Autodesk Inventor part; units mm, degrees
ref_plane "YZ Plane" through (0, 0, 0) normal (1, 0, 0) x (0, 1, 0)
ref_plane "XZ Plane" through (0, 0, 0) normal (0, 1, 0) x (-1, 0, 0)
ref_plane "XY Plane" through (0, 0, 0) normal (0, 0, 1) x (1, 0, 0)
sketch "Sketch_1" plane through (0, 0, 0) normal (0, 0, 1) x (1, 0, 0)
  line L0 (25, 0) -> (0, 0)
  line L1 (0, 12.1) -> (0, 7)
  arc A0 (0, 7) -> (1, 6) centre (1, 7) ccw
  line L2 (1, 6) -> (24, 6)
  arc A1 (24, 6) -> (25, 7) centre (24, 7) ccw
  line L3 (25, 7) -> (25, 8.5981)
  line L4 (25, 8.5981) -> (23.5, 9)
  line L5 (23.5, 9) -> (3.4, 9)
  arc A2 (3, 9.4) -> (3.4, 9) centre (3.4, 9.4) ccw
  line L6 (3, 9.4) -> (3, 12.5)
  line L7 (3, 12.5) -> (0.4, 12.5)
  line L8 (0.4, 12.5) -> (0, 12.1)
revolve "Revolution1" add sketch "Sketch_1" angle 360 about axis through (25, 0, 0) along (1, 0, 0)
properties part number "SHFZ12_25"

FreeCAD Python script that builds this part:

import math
import FreeCAD as App
import Part
import Sketcher
from FreeCAD import Vector
Q = App.Units.Quantity

doc = App.newDocument("Part")
body = doc.addObject("PartDesign::Body", "Body")

sketch1 = doc.addObject("Sketcher::SketchObject", "Sketch")
body.addObject(sketch1)
sketch1.AttachmentSupport = (doc.XY_Plane, [""])
sketch1.MapMode = "FlatFace"
sketch1.addGeometry(Part.LineSegment(Vector(0.4, 12.5, 0), Vector(0, 12.1, 0)), False)
sketch1.addGeometry(Part.LineSegment(Vector(0, 12.1, 0), Vector(0, 7, 0)), False)
sketch1.addGeometry(Part.ArcOfCircle(Part.Circle(Vector(1, 7, 0), Vector(0, 0, 1), 1), math.radians(180), math.radians(270)), False)
sketch1.addGeometry(Part.LineSegment(Vector(1, 6, 0), Vector(24, 6, 0)), False)
sketch1.addGeometry(Part.ArcOfCircle(Part.Circle(Vector(24, 7, 0), Vector(0, 0, 1), 1), math.radians(-90), math.radians(0)), False)
sketch1.addGeometry(Part.LineSegment(Vector(25, 7, 0), Vector(25, 8.6, 0)), False)
sketch1.addGeometry(Part.LineSegment(Vector(25, 8.6, 0), Vector(23.5, 9, 0)), False)
sketch1.addGeometry(Part.LineSegment(Vector(23.5, 9, 0), Vector(3.4, 9, 0)), False)
sketch1.addGeometry(Part.ArcOfCircle(Part.Circle(Vector(3.4, 9.4, 0), Vector(0, 0, 1), 0.4), math.radians(180), math.radians(270)), False)
sketch1.addGeometry(Part.LineSegment(Vector(3, 9.4, 0), Vector(3, 12.5, 0)), False)
sketch1.addGeometry(Part.LineSegment(Vector(3, 12.5, 0), Vector(0.4, 12.5, 0)), False)
sketch1.addConstraint(Sketcher.Constraint("Coincident", 0, 2, 1, 1))
sketch1.addConstraint(Sketcher.Constraint("Tangent", 1, 2, 2, 1))
sketch1.addConstraint(Sketcher.Constraint("Tangent", 2, 2, 3, 1))
sketch1.addConstraint(Sketcher.Constraint("Tangent", 3, 2, 4, 1))
sketch1.addConstraint(Sketcher.Constraint("Tangent", 4, 2, 5, 1))
sketch1.addConstraint(Sketcher.Constraint("Coincident", 5, 2, 6, 1))
sketch1.addConstraint(Sketcher.Constraint("Coincident", 6, 2, 7, 1))
sketch1.addConstraint(Sketcher.Constraint("Tangent", 7, 2, 8, 2))
sketch1.addConstraint(Sketcher.Constraint("Tangent", 8, 1, 9, 1))
sketch1.addConstraint(Sketcher.Constraint("Coincident", 9, 2, 10, 1))
sketch1.addConstraint(Sketcher.Constraint("Coincident", 10, 2, 0, 1))
sketch1.addConstraint(Sketcher.Constraint("Vertical", 1))
sketch1.addConstraint(Sketcher.Constraint("Horizontal", 3))
sketch1.addConstraint(Sketcher.Constraint("Vertical", 5))
sketch1.addConstraint(Sketcher.Constraint("Horizontal", 7))
sketch1.addConstraint(Sketcher.Constraint("Vertical", 9))
sketch1.addConstraint(Sketcher.Constraint("Horizontal", 10))
sketch1.addConstraint(Sketcher.Constraint("Equal", 2, 4))
sketch1.addConstraint(Sketcher.Constraint("PointOnObject", 0, 2, -2))
sketch1.addConstraint(Sketcher.Constraint("Radius", 2, Q("1 mm")))
sketch1.addConstraint(Sketcher.Constraint("Radius", 8, Q("0.4 mm")))
sketch1.addConstraint(Sketcher.Constraint("DistanceX", 3, 1, 3, 2, Q("23 mm")))
sketch1.addConstraint(Sketcher.Constraint("Angle", 0, Q("-135 deg")))
sketch1.addConstraint(Sketcher.Constraint("Angle", 6, Q("165.0008 deg")))
sketch1.addConstraint(Sketcher.Constraint("DistanceX", 7, 2, 7, 1, Q("20.1 mm")))
sketch1.addConstraint(Sketcher.Constraint("DistanceX", 10, 2, 10, 1, Q("2.6 mm")))
sketch1.addConstraint(Sketcher.Constraint("DistanceY", 1, 2, 1, 1, Q("5.1 mm")))
sketch1.addConstraint(Sketcher.Constraint("DistanceY", 9, 1, 9, 2, Q("3.1 mm")))
sketch1.addConstraint(Sketcher.Constraint("DistanceY", -1, 1, 2, 3, Q("7 mm")))
sketch1.addConstraint(Sketcher.Constraint("DistanceY", -1, 1, 6, 2, Q("9 mm")))
revolution = doc.addObject("PartDesign::Revolution", "Revolution")
body.addObject(revolution)
revolution.Profile = sketch1
revolution.ReferenceAxis = (sketch1, ["H_Axis"])
revolution.Angle = 360

doc.recompute()
